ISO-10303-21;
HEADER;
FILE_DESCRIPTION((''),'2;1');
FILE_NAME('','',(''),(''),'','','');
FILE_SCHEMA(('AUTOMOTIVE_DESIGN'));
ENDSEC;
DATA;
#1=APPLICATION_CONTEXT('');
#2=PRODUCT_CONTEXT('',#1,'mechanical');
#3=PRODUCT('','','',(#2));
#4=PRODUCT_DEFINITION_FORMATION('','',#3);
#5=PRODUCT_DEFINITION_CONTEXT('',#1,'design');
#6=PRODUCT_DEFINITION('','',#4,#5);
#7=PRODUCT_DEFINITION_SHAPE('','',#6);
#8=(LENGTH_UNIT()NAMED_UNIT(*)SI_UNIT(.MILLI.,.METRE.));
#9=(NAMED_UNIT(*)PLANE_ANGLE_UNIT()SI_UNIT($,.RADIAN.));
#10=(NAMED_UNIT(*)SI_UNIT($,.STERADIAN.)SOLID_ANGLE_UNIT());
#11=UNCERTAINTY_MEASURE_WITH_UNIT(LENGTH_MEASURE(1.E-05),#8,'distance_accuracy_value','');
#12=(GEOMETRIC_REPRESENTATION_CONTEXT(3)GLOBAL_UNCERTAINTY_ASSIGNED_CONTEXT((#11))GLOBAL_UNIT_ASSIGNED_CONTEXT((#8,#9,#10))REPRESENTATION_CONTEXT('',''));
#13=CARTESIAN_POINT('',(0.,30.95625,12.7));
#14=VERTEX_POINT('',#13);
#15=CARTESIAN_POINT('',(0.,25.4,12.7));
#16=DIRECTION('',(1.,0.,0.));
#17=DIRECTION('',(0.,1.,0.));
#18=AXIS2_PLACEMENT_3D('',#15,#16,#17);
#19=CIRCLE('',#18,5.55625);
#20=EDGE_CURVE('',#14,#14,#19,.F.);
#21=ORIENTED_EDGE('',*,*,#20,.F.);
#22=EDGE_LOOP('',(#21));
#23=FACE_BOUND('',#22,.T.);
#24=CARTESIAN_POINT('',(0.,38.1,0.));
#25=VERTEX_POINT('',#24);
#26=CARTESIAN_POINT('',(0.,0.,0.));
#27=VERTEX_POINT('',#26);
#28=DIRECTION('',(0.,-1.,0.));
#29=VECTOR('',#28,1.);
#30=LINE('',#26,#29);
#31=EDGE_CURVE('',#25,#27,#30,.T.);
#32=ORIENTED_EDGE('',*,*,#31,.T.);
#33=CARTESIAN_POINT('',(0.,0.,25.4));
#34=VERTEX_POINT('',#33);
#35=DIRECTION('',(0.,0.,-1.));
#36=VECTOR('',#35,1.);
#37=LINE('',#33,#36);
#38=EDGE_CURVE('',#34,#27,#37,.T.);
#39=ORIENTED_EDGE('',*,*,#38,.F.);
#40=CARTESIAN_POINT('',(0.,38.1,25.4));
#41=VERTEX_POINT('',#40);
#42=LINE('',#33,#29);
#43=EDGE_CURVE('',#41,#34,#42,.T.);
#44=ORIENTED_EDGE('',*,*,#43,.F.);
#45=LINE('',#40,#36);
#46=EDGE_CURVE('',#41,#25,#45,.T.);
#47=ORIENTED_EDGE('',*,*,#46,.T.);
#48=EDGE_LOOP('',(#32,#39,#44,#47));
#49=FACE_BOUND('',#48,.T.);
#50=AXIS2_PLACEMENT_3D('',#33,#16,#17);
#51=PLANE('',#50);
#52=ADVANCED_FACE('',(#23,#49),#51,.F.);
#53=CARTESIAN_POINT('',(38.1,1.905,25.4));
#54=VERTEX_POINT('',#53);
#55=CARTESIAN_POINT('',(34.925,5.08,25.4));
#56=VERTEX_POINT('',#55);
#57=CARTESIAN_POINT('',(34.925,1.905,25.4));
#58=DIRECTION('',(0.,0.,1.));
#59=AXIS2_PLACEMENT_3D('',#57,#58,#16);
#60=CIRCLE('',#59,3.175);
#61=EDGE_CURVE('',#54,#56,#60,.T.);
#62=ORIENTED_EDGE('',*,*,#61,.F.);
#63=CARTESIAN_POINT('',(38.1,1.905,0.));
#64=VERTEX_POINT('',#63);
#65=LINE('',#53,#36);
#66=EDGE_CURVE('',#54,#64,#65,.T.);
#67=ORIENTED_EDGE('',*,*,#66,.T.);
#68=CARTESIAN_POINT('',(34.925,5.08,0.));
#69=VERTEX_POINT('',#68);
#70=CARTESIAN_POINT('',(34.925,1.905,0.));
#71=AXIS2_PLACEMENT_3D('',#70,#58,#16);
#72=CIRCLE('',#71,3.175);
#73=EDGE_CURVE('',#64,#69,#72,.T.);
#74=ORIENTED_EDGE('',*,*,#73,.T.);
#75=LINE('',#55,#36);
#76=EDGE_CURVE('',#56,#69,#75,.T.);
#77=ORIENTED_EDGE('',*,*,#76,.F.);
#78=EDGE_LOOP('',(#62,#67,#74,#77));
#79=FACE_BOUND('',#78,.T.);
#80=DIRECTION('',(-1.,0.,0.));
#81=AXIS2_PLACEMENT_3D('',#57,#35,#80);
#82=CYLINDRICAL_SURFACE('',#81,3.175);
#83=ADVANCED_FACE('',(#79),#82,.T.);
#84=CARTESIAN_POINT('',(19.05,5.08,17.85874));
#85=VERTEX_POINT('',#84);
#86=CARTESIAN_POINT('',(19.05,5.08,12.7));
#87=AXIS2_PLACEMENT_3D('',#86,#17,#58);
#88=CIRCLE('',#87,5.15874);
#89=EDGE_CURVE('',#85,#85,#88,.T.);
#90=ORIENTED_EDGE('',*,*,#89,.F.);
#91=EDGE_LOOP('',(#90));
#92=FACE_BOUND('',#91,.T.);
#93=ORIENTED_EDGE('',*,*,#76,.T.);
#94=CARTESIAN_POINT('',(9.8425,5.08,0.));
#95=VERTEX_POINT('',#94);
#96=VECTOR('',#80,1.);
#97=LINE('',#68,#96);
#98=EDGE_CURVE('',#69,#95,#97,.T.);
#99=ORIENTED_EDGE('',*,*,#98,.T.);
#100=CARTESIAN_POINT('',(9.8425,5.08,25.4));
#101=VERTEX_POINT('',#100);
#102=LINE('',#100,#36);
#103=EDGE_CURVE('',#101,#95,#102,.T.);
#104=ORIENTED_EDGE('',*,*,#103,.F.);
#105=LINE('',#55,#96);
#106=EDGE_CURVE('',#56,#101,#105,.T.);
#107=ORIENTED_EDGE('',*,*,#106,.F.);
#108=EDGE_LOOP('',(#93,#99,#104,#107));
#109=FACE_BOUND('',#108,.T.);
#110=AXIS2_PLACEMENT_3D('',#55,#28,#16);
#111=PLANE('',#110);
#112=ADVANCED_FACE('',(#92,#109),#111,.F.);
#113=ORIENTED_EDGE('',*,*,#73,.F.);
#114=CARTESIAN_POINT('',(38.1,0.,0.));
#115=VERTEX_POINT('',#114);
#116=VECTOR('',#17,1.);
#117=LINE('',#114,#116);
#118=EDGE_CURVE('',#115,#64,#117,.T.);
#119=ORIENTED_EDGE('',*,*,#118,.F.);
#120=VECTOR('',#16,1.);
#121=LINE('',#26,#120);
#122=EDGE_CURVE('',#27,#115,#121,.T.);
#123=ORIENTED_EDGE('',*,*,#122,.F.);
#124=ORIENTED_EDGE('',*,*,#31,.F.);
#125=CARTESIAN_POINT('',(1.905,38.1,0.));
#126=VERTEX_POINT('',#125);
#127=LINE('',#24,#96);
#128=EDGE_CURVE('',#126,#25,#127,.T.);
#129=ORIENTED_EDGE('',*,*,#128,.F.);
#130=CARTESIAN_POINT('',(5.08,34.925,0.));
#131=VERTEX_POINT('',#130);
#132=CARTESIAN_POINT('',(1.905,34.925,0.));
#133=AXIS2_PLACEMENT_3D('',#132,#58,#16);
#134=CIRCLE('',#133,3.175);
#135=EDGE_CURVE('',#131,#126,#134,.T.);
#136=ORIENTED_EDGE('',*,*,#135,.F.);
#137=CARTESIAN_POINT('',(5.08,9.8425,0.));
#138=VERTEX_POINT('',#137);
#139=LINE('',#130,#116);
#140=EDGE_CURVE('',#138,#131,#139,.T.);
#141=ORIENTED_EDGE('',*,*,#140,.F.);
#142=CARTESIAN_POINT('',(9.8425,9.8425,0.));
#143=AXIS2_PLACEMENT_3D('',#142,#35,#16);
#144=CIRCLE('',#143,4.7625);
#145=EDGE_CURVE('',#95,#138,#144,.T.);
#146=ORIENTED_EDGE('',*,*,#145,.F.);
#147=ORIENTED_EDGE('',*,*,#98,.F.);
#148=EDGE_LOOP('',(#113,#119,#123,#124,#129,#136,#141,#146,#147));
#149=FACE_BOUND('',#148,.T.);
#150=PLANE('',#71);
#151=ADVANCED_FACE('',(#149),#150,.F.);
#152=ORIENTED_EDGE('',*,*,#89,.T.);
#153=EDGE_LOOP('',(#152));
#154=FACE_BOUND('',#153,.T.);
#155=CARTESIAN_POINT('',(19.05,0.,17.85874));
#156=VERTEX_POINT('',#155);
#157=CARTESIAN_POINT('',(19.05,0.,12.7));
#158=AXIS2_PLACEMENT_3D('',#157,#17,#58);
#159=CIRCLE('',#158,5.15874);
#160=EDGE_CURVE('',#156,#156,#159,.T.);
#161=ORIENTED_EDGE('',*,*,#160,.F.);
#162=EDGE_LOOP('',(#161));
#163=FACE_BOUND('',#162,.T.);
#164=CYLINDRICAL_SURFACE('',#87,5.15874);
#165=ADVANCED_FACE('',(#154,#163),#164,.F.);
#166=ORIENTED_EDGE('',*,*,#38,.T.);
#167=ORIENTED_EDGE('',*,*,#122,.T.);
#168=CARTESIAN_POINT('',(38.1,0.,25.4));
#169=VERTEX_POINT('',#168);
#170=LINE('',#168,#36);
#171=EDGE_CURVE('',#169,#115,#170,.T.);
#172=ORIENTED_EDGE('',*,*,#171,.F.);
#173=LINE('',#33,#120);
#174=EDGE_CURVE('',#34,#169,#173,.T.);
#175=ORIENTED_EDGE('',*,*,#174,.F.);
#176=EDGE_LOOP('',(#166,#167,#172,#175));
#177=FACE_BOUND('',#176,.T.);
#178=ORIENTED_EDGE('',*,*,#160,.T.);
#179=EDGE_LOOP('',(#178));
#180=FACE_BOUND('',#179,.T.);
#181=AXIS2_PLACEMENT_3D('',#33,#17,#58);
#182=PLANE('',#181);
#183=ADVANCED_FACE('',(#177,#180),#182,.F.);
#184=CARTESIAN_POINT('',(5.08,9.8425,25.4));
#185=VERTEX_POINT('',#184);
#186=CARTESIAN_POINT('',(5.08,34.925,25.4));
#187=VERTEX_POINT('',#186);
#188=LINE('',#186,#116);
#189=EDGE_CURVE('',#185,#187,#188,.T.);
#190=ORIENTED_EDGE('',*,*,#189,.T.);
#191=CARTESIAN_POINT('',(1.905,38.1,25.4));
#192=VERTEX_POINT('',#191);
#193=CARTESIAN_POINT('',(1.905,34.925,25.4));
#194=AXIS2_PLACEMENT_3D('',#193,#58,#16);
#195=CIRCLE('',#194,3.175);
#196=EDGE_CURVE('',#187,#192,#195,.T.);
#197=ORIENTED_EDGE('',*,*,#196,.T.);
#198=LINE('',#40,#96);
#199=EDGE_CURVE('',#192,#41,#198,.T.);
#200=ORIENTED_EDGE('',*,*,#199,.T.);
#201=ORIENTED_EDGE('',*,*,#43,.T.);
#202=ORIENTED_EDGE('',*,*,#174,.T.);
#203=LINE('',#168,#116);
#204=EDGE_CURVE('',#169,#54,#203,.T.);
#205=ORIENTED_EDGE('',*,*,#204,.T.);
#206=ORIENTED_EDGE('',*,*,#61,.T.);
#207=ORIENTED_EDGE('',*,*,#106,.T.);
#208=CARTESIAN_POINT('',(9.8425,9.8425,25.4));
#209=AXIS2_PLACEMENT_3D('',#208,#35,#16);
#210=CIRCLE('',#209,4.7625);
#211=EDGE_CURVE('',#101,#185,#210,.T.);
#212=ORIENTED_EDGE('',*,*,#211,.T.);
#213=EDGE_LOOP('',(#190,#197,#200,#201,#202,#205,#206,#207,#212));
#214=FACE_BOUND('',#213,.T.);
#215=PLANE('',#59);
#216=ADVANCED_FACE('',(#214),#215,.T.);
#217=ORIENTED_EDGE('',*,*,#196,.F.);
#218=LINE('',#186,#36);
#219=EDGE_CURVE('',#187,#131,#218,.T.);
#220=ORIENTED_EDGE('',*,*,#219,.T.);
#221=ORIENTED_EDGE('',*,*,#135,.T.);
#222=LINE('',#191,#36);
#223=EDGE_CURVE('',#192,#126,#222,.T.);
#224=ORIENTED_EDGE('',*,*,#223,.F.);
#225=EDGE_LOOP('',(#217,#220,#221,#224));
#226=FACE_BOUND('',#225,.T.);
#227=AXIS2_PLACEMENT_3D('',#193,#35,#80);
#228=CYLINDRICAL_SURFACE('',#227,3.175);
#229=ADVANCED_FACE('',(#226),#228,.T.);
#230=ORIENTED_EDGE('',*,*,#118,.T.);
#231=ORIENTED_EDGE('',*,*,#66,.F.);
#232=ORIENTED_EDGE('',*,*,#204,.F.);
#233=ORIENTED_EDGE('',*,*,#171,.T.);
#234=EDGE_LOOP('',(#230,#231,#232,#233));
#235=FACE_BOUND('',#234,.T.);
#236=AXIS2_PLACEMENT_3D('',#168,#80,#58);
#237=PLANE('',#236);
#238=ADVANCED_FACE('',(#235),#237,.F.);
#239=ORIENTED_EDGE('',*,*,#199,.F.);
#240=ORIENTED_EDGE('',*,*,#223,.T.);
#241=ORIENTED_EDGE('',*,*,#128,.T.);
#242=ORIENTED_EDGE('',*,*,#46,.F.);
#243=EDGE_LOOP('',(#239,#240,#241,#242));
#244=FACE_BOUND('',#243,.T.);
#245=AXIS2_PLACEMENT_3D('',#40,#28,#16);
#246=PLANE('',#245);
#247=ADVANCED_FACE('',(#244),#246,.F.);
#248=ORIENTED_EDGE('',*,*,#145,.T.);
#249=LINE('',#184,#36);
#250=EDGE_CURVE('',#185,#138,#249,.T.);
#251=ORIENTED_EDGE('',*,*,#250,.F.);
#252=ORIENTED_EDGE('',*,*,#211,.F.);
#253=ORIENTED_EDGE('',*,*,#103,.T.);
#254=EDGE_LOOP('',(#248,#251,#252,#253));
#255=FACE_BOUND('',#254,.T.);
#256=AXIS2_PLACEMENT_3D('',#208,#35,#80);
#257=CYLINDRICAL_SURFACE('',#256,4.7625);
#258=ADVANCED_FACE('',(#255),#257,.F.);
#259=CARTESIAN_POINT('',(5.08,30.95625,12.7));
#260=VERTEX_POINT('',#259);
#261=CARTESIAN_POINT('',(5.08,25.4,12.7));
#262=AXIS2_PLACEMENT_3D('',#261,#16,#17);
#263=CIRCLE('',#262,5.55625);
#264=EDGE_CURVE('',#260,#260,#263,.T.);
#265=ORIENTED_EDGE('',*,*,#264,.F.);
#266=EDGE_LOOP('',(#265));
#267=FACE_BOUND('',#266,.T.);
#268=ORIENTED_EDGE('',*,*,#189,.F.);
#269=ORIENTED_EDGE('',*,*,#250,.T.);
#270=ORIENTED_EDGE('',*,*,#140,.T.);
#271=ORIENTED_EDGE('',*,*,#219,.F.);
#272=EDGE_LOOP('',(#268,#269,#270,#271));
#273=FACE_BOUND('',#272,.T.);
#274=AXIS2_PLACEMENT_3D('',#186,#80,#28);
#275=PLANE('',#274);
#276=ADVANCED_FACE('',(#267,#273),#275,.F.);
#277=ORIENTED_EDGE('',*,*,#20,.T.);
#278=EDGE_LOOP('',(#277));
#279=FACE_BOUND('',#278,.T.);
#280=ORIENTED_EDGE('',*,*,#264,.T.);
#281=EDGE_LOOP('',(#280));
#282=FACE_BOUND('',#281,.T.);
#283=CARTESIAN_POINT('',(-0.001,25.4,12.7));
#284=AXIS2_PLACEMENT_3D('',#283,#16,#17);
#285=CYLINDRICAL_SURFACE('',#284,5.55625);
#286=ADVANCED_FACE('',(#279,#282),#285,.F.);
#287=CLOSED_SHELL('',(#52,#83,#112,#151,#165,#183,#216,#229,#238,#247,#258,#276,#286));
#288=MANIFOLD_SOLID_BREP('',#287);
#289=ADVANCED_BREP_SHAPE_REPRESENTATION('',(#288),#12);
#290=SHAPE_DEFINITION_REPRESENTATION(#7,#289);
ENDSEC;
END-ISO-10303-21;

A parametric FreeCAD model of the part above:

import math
import FreeCAD as App
import Part
import Sketcher
from FreeCAD import Vector
Q = App.Units.Quantity

doc = App.newDocument("Part")
params = doc.addObject("Spreadsheet::Sheet", "Params")
for row, (alias, value) in enumerate([
    ("sketch1_width", "1.5 in"),
    ("sketch1_radius", "0.125 in"),
    ("sketch1_radius2", "0.1875 in"),
    ("pad1_length", "1 in"),
    ("hole_diameter", "0.4062 in"),
    ("sketch3_diameter", "0.4375 in"),
], start=1):
    params.set(f"A{row}", alias)
    params.set(f"B{row}", "=" + value)
    params.setAlias(f"B{row}", alias)

body = doc.addObject("PartDesign::Body", "Body")

# Sketch on XY plane
sketch1 = body.newObject("Sketcher::SketchObject", "Sketch")
sketch1.AttachmentSupport = (doc.getObject("XY_Plane"), [""])
sketch1.MapMode = "FlatFace"
sketch1.addGeometry([
    Part.LineSegment(Vector(0, 38.1, 0), Vector(0, 0, 0)),  # 0
    Part.LineSegment(Vector(0, 0, 0), Vector(38.1, 0, 0)),  # 1
    Part.LineSegment(Vector(38.1, 0, 0), Vector(38.1, 1.9, 0)),  # 2
    Part.ArcOfCircle(Part.Circle(Vector(34.9, 1.9, 0), Vector(0, 0, 1), 3.2), math.radians(0), math.radians(90)),  # 3
    Part.LineSegment(Vector(34.9, 5.1, 0), Vector(9.8, 5.1, 0)),  # 4
    Part.ArcOfCircle(Part.Circle(Vector(9.8, 9.8, 0), Vector(0, 0, 1), 4.8), math.radians(-180), math.radians(-90)),  # 5
    Part.LineSegment(Vector(5.1, 9.8, 0), Vector(5.1, 34.9, 0)),  # 6
    Part.ArcOfCircle(Part.Circle(Vector(1.9, 34.9, 0), Vector(0, 0, 1), 3.2), math.radians(0), math.radians(90)),  # 7
    Part.LineSegment(Vector(1.9, 38.1, 0), Vector(0, 38.1, 0)),  # 8
], False)
sketch1.addConstraint([
    Sketcher.Constraint("Coincident", 0, 2, 1, 1),
    Sketcher.Constraint("Coincident", 1, 2, 2, 1),
    Sketcher.Constraint("Tangent", 2, 2, 3, 1),
    Sketcher.Constraint("Tangent", 3, 2, 4, 1),
    Sketcher.Constraint("Tangent", 4, 2, 5, 2),
    Sketcher.Constraint("Tangent", 5, 1, 6, 1),
    Sketcher.Constraint("Tangent", 6, 2, 7, 1),
    Sketcher.Constraint("Tangent", 7, 2, 8, 1),
    Sketcher.Constraint("Coincident", 8, 2, 0, 1),
    Sketcher.Constraint("Vertical", 0),
    Sketcher.Constraint("Horizontal", 1),
    Sketcher.Constraint("Vertical", 2),
    Sketcher.Constraint("Horizontal", 4),
    Sketcher.Constraint("Vertical", 6),
    Sketcher.Constraint("Horizontal", 8),
    Sketcher.Constraint("Coincident", 0, 2, -1, 1),
    Sketcher.Constraint("Equal", 3, 7),
    Sketcher.Constraint("Equal", 1, 0),
    Sketcher.Constraint("Equal", 8, 2),
    Sketcher.Constraint("DistanceX", 1, 1, 1, 2, Q("1.5 in")),
    Sketcher.Constraint("Radius", 3, Q("0.125 in")),
    Sketcher.Constraint("Radius", 5, Q("0.1875 in")),
    Sketcher.Constraint("DistanceY", -1, 1, 3, 2, Q("0.2 in")),
])
sketch1.setExpression("Constraints[19]", "Params.sketch1_width")
sketch1.setExpression("Constraints[20]", "Params.sketch1_radius")
sketch1.setExpression("Constraints[21]", "Params.sketch1_radius2")
pad1 = body.newObject("PartDesign::Pad", "Pad")
pad1.Profile = sketch1
pad1.setExpression("Length", "Params.pad1_length")

# Sketch on XZ plane
sketch2 = body.newObject("Sketcher::SketchObject", "Sketch001")
sketch2.AttachmentSupport = (doc.getObject("XZ_Plane"), [""])
sketch2.MapMode = "FlatFace"
sketch2.AttachmentOffset = App.Placement(Vector(0, 0, -0.2 * 25.4), App.Rotation())
sketch2.addGeometry(Part.Circle(Vector(19, 13, 0), Vector(0, 0, 1), 5), False)
sketch2.addConstraint([
    Sketcher.Constraint("Diameter", 0, Q("0.4062 in")),
    Sketcher.Constraint("DistanceY", -1, 1, 0, 3, Q("0.5 in")),
    Sketcher.Constraint("DistanceX", -1, 1, 0, 3, Q("0.75 in")),
])
doc.recompute()
hole = body.newObject("PartDesign::Hole", "Hole")
hole.Profile = sketch2
hole.ThreadType = "None"
hole.setExpression("Diameter", "Params.hole_diameter")
hole.DepthType = "ThroughAll"
hole.Reversed = True

# Sketch on YZ plane
sketch3 = body.newObject("Sketcher::SketchObject", "Sketch002")
sketch3.AttachmentSupport = (doc.getObject("YZ_Plane"), [""])
sketch3.MapMode = "FlatFace"
sketch3.AttachmentOffset = App.Placement(Vector(0, 0, 0.2 * 25.4), App.Rotation())
sketch3.addGeometry(Part.Circle(Vector(25, 13, 0), Vector(0, 0, 1), 6), False)
sketch3.addConstraint([
    Sketcher.Constraint("Diameter", 0, Q("0.4375 in")),
    Sketcher.Constraint("DistanceX", -1, 1, 0, 3, Q("1 in")),
    Sketcher.Constraint("DistanceY", -1, 1, 0, 3, Q("0.5 in")),
])
sketch3.setExpression("Constraints[0]", "Params.sketch3_diameter")
pocket1 = body.newObject("PartDesign::Pocket", "Pocket")
pocket1.Profile = sketch3
pocket1.Type = "UpToFirst"

doc.recompute()
